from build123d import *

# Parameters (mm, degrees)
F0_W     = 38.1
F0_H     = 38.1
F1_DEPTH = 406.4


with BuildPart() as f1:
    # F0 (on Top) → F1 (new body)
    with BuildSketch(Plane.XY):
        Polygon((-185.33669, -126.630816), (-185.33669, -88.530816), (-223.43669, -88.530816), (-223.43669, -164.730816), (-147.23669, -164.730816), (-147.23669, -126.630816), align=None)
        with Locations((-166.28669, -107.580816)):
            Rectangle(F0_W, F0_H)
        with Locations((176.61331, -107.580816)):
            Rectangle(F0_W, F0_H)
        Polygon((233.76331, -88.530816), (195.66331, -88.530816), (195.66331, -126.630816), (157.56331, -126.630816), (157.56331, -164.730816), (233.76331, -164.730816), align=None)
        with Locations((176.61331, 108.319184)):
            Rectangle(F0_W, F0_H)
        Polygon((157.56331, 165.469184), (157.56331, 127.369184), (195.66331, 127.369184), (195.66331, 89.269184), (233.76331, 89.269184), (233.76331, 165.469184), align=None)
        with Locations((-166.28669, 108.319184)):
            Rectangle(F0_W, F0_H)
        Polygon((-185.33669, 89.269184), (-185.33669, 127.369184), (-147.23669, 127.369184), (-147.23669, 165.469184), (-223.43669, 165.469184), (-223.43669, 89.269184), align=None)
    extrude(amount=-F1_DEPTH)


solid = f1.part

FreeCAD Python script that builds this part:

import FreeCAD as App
import Part
import Sketcher
from FreeCAD import Vector
Q = App.Units.Quantity


def add_polygon(sketch, points):
    """Adds a closed chain of lines whose ends are joined by coincident constraints."""
    first, n = sketch.GeometryCount, len(points)
    for a, b in zip(points, points[1:] + points[:1]):
        sketch.addGeometry(Part.LineSegment(App.Vector(*a, 0), App.Vector(*b, 0)), False)
    for i in range(n):
        sketch.addConstraint(Sketcher.Constraint("Coincident", first + i, 2, first + (i + 1) % n, 1))

doc = App.newDocument("Part")
params = doc.addObject("Spreadsheet::Sheet", "Params")
for row, (alias, value) in enumerate([
    ("sketch1_width", "3 in"),
    ("pad1_length", "16 in"),
], start=1):
    params.set(f"A{row}", alias)
    params.set(f"B{row}", "=" + value)
    params.setAlias(f"B{row}", alias)

body = doc.addObject("PartDesign::Body", "Body")
body.AllowCompound = True

# Sketch on XY plane
sketch1 = body.newObject("Sketcher::SketchObject", "Sketch")
sketch1.AttachmentSupport = (doc.getObject("XY_Plane"), [""])
sketch1.MapMode = "FlatFace"
add_polygon(sketch1, [(-223, -89), (-223, -165), (-147, -165), (-147, -89)])  # lines 0-3
add_polygon(sketch1, [(158, -89), (158, -165), (234, -165), (234, -89)])  # lines 4-7
add_polygon(sketch1, [(158, 89), (234, 89), (234, 165), (158, 165)])  # lines 8-11
add_polygon(sketch1, [(-147, 89), (-147, 165), (-223, 165), (-223, 89)])  # lines 12-15
sketch1.addConstraint([
    Sketcher.Constraint("Vertical", 0),
    Sketcher.Constraint("Horizontal", 1),
    Sketcher.Constraint("Vertical", 2),
    Sketcher.Constraint("Horizontal", 3),
    Sketcher.Constraint("Vertical", 4),
    Sketcher.Constraint("Horizontal", 5),
    Sketcher.Constraint("Vertical", 6),
    Sketcher.Constraint("Horizontal", 7),
    Sketcher.Constraint("Horizontal", 8),
    Sketcher.Constraint("Vertical", 9),
    Sketcher.Constraint("Horizontal", 10),
    Sketcher.Constraint("Vertical", 11),
    Sketcher.Constraint("Vertical", 12),
    Sketcher.Constraint("Horizontal", 13),
    Sketcher.Constraint("Vertical", 14),
    Sketcher.Constraint("Horizontal", 15),
    Sketcher.Constraint("Horizontal", 1, 2, 4, 2),
    Sketcher.Constraint("Horizontal", 3, 2, 6, 2),
    Sketcher.Constraint("Horizontal", 10, 2, 12, 2),
    Sketcher.Constraint("Horizontal", 11, 2, 14, 2),
    Sketcher.Constraint("Vertical", 6, 2, 8, 2),
    Sketcher.Constraint("Vertical", 7, 2, 10, 2),
    Sketcher.Constraint("Vertical", 2, 2, 12, 2),
    Sketcher.Constraint("Vertical", 3, 2, 13, 2),
    Sketcher.Constraint("Equal", 3, 5),
    Sketcher.Constraint("Equal", 15, 0),
    Sketcher.Constraint("Equal", 6, 9),
    Sketcher.Constraint("DistanceX", 1, 1, 1, 2, Q("3 in")),
    Sketcher.Constraint("DistanceX", 1, 2, 4, 2, Q("12 in")),
    Sketcher.Constraint("DistanceY", 6, 2, 8, 2, Q("7 in")),
    Sketcher.Constraint("DistanceX", 0, 2, -1, 1, 223.43669),
    Sketcher.Constraint("DistanceY", 0, 2, -1, 1, 164.730816),
])
sketch1.setExpression("Constraints[43]", "Params.sketch1_width")
pad1 = body.newObject("PartDesign::Pad", "Pad")
pad1.Profile = sketch1
pad1.setExpression("Length", "Params.pad1_length")
pad1.Reversed = True

doc.recompute()
